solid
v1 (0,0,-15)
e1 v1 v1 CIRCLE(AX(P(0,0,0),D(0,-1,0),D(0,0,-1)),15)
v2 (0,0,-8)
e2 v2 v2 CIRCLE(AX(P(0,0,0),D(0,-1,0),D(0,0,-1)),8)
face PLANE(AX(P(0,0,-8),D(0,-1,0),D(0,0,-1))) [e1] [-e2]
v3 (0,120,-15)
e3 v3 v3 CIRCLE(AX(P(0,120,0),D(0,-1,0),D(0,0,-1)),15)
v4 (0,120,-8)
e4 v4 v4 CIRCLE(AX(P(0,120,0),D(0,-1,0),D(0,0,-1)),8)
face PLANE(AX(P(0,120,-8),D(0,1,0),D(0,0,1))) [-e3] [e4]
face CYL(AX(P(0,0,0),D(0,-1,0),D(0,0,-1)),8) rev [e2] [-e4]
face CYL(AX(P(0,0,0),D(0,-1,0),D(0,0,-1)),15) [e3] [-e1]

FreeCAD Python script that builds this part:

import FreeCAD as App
import Part
import Sketcher
Q = App.Units.Quantity


def add_polygon(sketch, points):
    """Adds a closed chain of lines whose ends are joined by coincident constraints."""
    first, n = sketch.GeometryCount, len(points)
    for a, b in zip(points, points[1:] + points[:1]):
        sketch.addGeometry(Part.LineSegment(App.Vector(*a, 0), App.Vector(*b, 0)), False)
    for i in range(n):
        sketch.addConstraint(Sketcher.Constraint("Coincident", first + i, 2, first + (i + 1) % n, 1))

doc = App.newDocument("Part")
body = doc.addObject("PartDesign::Body", "Body")

# Sketch on YZ plane
sketch1 = body.newObject("Sketcher::SketchObject", "Sketch")
sketch1.AttachmentSupport = (doc.getObject("YZ_Plane"), [""])
sketch1.MapMode = "FlatFace"
add_polygon(sketch1, [(120, -8), (0, -8), (0, -15), (120, -15)])  # lines 0-3
sketch1.addConstraint([
    Sketcher.Constraint("Horizontal", 0),
    Sketcher.Constraint("Vertical", 1),
    Sketcher.Constraint("Horizontal", 2),
    Sketcher.Constraint("Vertical", 3),
    Sketcher.Constraint("PointOnObject", 0, 2, -2),
    Sketcher.Constraint("DistanceX", 0, 2, 0, 1, Q("120 mm")),
    Sketcher.Constraint("DistanceY", 1, 2, 1, 1, Q("7 mm")),
    Sketcher.Constraint("DistanceY", 0, 2, -1, 1, Q("8 mm")),
])
revolution = body.newObject("PartDesign::Revolution", "Revolution")
revolution.Profile = sketch1
revolution.ReferenceAxis = (sketch1, ["H_Axis"])
revolution.Angle = 360

doc.recompute()
